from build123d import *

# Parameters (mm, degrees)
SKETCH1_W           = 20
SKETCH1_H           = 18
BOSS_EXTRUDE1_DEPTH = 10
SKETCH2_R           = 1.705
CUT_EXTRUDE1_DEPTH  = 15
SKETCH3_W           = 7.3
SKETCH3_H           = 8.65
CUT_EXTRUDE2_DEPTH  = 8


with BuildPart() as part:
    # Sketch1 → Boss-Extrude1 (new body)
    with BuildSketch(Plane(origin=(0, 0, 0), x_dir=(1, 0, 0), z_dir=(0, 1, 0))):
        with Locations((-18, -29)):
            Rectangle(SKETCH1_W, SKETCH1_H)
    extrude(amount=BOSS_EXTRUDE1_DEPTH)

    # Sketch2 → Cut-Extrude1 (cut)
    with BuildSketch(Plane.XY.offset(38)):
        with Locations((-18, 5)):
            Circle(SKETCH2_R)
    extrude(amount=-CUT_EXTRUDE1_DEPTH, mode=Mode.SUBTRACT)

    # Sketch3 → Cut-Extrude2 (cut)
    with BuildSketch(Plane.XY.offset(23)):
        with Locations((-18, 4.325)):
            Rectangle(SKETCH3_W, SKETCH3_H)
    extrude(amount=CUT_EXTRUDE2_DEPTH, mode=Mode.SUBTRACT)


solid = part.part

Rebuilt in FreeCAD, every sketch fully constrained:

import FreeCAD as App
import Part
import Sketcher

V = App.Vector


def add_polygon(sketch, points):
    """Adds a closed chain of lines whose ends are joined by coincident constraints."""
    first, n = sketch.GeometryCount, len(points)
    for a, b in zip(points, points[1:] + points[:1]):
        sketch.addGeometry(Part.LineSegment(App.Vector(*a, 0), App.Vector(*b, 0)), False)
    for i in range(n):
        sketch.addConstraint(Sketcher.Constraint("Coincident", first + i, 2, first + (i + 1) % n, 1))

doc = App.newDocument("Part")
params = doc.addObject("Spreadsheet::Sheet", "Params")
for row, (alias, value) in enumerate([
    ("sketch1_width", "20 mm"),
    ("sketch1_height", "18 mm"),
    ("pad1_length", "10 mm"),
    ("sketch2_diameter", "3.41 mm"),
    ("pocket1_length", "15 mm"),
    ("sketch3_width", "7.3 mm"),
    ("sketch3_height", "8.65 mm"),
    ("pocket2_length", "8 mm"),
], start=1):
    params.set(f"A{row}", alias)
    params.set(f"B{row}", "=" + value)
    params.setAlias(f"B{row}", alias)

body = doc.addObject("PartDesign::Body", "Body")

sketch1 = body.newObject("Sketcher::SketchObject", "Sketch")
sketch1.AttachmentSupport = (doc.getObject("XZ_Plane"), [""])
sketch1.MapMode = "FlatFace"
add_polygon(sketch1, [(-28, 20), (-28, 38), (-8, 38), (-8, 20)])
sketch1.addConstraint(Sketcher.Constraint("Vertical", 0))
sketch1.addConstraint(Sketcher.Constraint("Horizontal", 1))
sketch1.addConstraint(Sketcher.Constraint("Vertical", 2))
sketch1.addConstraint(Sketcher.Constraint("Horizontal", 3))
sketch1.addConstraint(Sketcher.Constraint("DistanceX", 1, 1, 1, 2, 20.0))
sketch1.addConstraint(Sketcher.Constraint("DistanceY", 0, 1, 0, 2, 18.0))
sketch1.addConstraint(Sketcher.Constraint("DistanceX", 0, 2, -1, 1, 28.0))
sketch1.addConstraint(Sketcher.Constraint("DistanceY", -1, 1, 0, 2, 38.0))
sketch1.setExpression("Constraints[8]", "Params.sketch1_width")
sketch1.setExpression("Constraints[9]", "Params.sketch1_height")
pad1 = body.newObject("PartDesign::Pad", "Pad")
pad1.Profile = sketch1
pad1.setExpression("Length", "Params.pad1_length")
pad1.Reversed = True

sketch2 = body.newObject("Sketcher::SketchObject", "Sketch001")
sketch2.AttachmentSupport = (doc.getObject("XY_Plane"), [""])
sketch2.MapMode = "FlatFace"
sketch2.AttachmentOffset = App.Placement(V(0, 0, 38), App.Rotation())
sketch2.addGeometry(Part.Circle(V(-18, 5, 0), V(0, 0, 1), 1.7), False)
sketch2.addConstraint(Sketcher.Constraint("Diameter", 0, 3.41))
sketch2.addConstraint(Sketcher.Constraint("DistanceX", 0, 3, -1, 1, 18.0))
sketch2.addConstraint(Sketcher.Constraint("DistanceY", -1, 1, 0, 3, 5.0))
sketch2.setExpression("Constraints[0]", "Params.sketch2_diameter")
pocket1 = body.newObject("PartDesign::Pocket", "Pocket")
pocket1.Profile = sketch2
pocket1.setExpression("Length", "Params.pocket1_length")

sketch3 = body.newObject("Sketcher::SketchObject", "Sketch002")
sketch3.AttachmentSupport = (doc.getObject("XY_Plane"), [""])
sketch3.MapMode = "FlatFace"
sketch3.AttachmentOffset = App.Placement(V(0, 0, 23), App.Rotation())
add_polygon(sketch3, [(-22, 9), (-22, 0), (-14, 0), (-14, 9)])
sketch3.addConstraint(Sketcher.Constraint("Vertical", 0))
sketch3.addConstraint(Sketcher.Constraint("Horizontal", 1))
sketch3.addConstraint(Sketcher.Constraint("Vertical", 2))
sketch3.addConstraint(Sketcher.Constraint("Horizontal", 3))
sketch3.addConstraint(Sketcher.Constraint("PointOnObject", 0, 2, -1))
sketch3.addConstraint(Sketcher.Constraint("DistanceX", 1, 1, 1, 2, 7.3))
sketch3.addConstraint(Sketcher.Constraint("DistanceY", 0, 2, 0, 1, 8.65))
sketch3.addConstraint(Sketcher.Constraint("DistanceX", 0, 2, -1, 1, 21.65))
sketch3.setExpression("Constraints[9]", "Params.sketch3_width")
sketch3.setExpression("Constraints[10]", "Params.sketch3_height")
pocket2 = body.newObject("PartDesign::Pocket", "Pocket001")
pocket2.Profile = sketch3
pocket2.setExpression("Length", "Params.pocket2_length")
pocket2.Reversed = True

doc.recompute()
